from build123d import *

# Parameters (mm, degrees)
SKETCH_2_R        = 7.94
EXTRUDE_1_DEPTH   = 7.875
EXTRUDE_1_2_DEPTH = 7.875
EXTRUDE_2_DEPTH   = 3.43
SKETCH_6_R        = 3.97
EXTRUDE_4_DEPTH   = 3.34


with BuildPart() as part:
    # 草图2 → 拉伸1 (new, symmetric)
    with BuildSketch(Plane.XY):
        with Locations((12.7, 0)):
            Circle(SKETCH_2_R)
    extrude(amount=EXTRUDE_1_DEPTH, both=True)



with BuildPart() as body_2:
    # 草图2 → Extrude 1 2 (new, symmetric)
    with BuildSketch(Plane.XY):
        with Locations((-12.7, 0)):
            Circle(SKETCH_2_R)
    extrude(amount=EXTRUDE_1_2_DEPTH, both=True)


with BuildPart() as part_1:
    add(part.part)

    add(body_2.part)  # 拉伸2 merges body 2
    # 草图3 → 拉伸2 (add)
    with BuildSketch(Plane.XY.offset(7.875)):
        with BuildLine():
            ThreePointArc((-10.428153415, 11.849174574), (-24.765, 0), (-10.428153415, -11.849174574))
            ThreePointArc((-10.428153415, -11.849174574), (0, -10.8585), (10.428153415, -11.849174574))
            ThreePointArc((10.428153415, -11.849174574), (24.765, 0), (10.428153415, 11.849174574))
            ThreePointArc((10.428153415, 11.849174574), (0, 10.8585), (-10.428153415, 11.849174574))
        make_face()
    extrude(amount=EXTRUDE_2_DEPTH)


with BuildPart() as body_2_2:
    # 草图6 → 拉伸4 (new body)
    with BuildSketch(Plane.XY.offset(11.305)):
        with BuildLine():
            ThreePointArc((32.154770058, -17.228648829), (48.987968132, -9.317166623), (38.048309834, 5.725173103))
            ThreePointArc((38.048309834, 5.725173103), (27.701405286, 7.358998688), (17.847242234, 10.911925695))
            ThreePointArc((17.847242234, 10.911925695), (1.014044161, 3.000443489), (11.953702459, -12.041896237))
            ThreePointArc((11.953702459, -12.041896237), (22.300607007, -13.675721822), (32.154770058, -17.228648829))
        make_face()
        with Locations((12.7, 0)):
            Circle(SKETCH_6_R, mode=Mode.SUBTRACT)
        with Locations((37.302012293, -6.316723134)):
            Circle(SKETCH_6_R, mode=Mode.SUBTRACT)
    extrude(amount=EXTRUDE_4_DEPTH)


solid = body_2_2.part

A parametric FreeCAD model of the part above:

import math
import FreeCAD as App
import Part
import Sketcher

V = App.Vector
Q = App.Units.Quantity

doc = App.newDocument("Part")
body = doc.addObject("PartDesign::Body", "Body")

sketch1 = body.newObject("Sketcher::SketchObject", "Sketch")
sketch1.AttachmentSupport = (doc.getObject("XY_Plane"), [""])
sketch1.MapMode = "FlatFace"
sketch1.addGeometry(Part.Circle(V(12.7, 0, 0), V(0, 0, 1), 7.94), False)
sketch1.addConstraint([
    Sketcher.Constraint("PointOnObject", 0, 3, -1),
    Sketcher.Constraint("DistanceX", -1, 1, 0, 3, Q("0.5 in")),
    Sketcher.Constraint("Diameter", 0, 15.88),
])
pad1 = body.newObject("PartDesign::Pad", "Pad")
pad1.Profile = sketch1
pad1.Length = 15.75
pad1.Midplane = True
body2 = doc.addObject("PartDesign::Body", "Body001")

sketch2 = body2.newObject("Sketcher::SketchObject", "Sketch001")
sketch2.AttachmentSupport = (doc.getObject("XY_Plane001"), [""])
sketch2.MapMode = "FlatFace"
sketch2.addGeometry(Part.Circle(V(-12.7, 0, 0), V(0, 0, 1), 7.94), False)
sketch2.addConstraint([
    Sketcher.Constraint("PointOnObject", 0, 3, -1),
    Sketcher.Constraint("DistanceX", 0, 3, -1, 1, Q("0.5 in")),
    Sketcher.Constraint("Diameter", 0, 15.88),
])
pad2 = body2.newObject("PartDesign::Pad", "Pad001")
pad2.Profile = sketch2
pad2.Length = 15.75
pad2.Midplane = True
body.AllowCompound = True
doc.recompute()

boolean = body.newObject("PartDesign::Boolean", "Boolean")
boolean.Type = "Fuse"
boolean.addObjects([body2])

sketch3 = body.newObject("Sketcher::SketchObject", "Sketch002")
sketch3.AttachmentSupport = (doc.getObject("XY_Plane"), [""])
sketch3.MapMode = "FlatFace"
sketch3.AttachmentOffset = App.Placement(V(0, 0, 7.875), App.Rotation())
sketch3.addGeometry([
    Part.ArcOfCircle(Part.Circle(V(-12.7, 0, 0), V(0, 0, 1), 12.065), math.radians(79.146375), math.radians(280.853625)),
    Part.ArcOfCircle(Part.Circle(V(0, -66.238855, 0), V(0, 0, 1), 55.380355), math.radians(79.146375), math.radians(100.853625)),
    Part.ArcOfCircle(Part.Circle(V(12.7, 0, 0), V(0, 0, 1), 12.065), math.radians(-100.853625), math.radians(100.853625)),
    Part.ArcOfCircle(Part.Circle(V(0, 66.238855, 0), V(0, 0, 1), 55.380355), math.radians(-100.853625), math.radians(-79.146375)),
], False)
sketch3.addConstraint([
    Sketcher.Constraint("Tangent", 0, 2, 1, 2),
    Sketcher.Constraint("Tangent", 1, 1, 2, 1),
    Sketcher.Constraint("Tangent", 2, 2, 3, 2),
    Sketcher.Constraint("Tangent", 3, 1, 0, 1),
    Sketcher.Constraint("Equal", 0, 2),
    Sketcher.Constraint("Equal", 1, 3),
    Sketcher.Constraint("Symmetric", 0, 3, 2, 3, -1, 1),
    Sketcher.Constraint("PointOnObject", 0, 3, -1),
    Sketcher.Constraint("Radius", 0, Q("0.475 in")),
    Sketcher.Constraint("DistanceX", 0, 3, 2, 3, Q("1 in")),
    Sketcher.Constraint("Radius", 1, 55.380355),
])
pad3 = body.newObject("PartDesign::Pad", "Pad002")
pad3.Profile = sketch3
pad3.Length = 3.43
body3 = doc.addObject("PartDesign::Body", "Body002")

sketch4 = body3.newObject("Sketcher::SketchObject", "Sketch003")
sketch4.AttachmentSupport = (doc.getObject("XY_Plane002"), [""])
sketch4.MapMode = "FlatFace"
sketch4.AttachmentOffset = App.Placement(V(0, 0, 11.305), App.Rotation())
sketch4.addGeometry([
    Part.ArcOfCircle(Part.Circle(V(37.302012, -6.316723, 0), V(0, 0, 1), 12.065), math.radians(-115.253625), math.radians(86.453625)),
    Part.ArcOfCircle(Part.Circle(V(41.47394, 60.999478, 0), V(0, 0, 1), 55.380355), math.radians(-115.253625), math.radians(-93.546375)),
    Part.ArcOfCircle(Part.Circle(V(12.7, 0, 0), V(0, 0, 1), 12.065), math.radians(64.746375), math.radians(266.453625)),
    Part.ArcOfCircle(Part.Circle(V(8.528073, -67.316201, 0), V(0, 0, 1), 55.380355), math.radians(64.746375), math.radians(86.453625)),
    Part.Circle(V(37.302012, -6.316723, 0), V(0, 0, 1), 3.97),
    Part.Circle(V(12.7, 0, 0), V(0, 0, 1), 3.97),
], False)
sketch4.addConstraint([
    Sketcher.Constraint("Tangent", 0, 2, 1, 2),
    Sketcher.Constraint("Tangent", 1, 1, 2, 1),
    Sketcher.Constraint("Tangent", 2, 2, 3, 2),
    Sketcher.Constraint("Tangent", 3, 1, 0, 1),
    Sketcher.Constraint("Coincident", 4, 3, 0, 3),
    Sketcher.Constraint("Coincident", 5, 3, 2, 3),
    Sketcher.Constraint("Equal", 0, 2),
    Sketcher.Constraint("Equal", 1, 3),
    Sketcher.Constraint("Equal", 4, 5),
    Sketcher.Constraint("PointOnObject", 2, 3, -1),
    Sketcher.Constraint("Radius", 0, Q("0.475 in")),
    Sketcher.Constraint("DistanceX", -1, 1, 2, 3, Q("0.5 in")),
    Sketcher.Constraint("Diameter", 4, 7.94),
    Sketcher.Constraint("Radius", 1, 55.380355),
    Sketcher.Constraint("DistanceY", 3, 3, -1, 1, 67.316201),
    Sketcher.Constraint("DistanceX", -1, 1, 1, 3, 41.47394),
])
pad4 = body3.newObject("PartDesign::Pad", "Pad003")
pad4.Profile = sketch4
pad4.Length = 3.34
body.Visibility = False

doc.recompute()
